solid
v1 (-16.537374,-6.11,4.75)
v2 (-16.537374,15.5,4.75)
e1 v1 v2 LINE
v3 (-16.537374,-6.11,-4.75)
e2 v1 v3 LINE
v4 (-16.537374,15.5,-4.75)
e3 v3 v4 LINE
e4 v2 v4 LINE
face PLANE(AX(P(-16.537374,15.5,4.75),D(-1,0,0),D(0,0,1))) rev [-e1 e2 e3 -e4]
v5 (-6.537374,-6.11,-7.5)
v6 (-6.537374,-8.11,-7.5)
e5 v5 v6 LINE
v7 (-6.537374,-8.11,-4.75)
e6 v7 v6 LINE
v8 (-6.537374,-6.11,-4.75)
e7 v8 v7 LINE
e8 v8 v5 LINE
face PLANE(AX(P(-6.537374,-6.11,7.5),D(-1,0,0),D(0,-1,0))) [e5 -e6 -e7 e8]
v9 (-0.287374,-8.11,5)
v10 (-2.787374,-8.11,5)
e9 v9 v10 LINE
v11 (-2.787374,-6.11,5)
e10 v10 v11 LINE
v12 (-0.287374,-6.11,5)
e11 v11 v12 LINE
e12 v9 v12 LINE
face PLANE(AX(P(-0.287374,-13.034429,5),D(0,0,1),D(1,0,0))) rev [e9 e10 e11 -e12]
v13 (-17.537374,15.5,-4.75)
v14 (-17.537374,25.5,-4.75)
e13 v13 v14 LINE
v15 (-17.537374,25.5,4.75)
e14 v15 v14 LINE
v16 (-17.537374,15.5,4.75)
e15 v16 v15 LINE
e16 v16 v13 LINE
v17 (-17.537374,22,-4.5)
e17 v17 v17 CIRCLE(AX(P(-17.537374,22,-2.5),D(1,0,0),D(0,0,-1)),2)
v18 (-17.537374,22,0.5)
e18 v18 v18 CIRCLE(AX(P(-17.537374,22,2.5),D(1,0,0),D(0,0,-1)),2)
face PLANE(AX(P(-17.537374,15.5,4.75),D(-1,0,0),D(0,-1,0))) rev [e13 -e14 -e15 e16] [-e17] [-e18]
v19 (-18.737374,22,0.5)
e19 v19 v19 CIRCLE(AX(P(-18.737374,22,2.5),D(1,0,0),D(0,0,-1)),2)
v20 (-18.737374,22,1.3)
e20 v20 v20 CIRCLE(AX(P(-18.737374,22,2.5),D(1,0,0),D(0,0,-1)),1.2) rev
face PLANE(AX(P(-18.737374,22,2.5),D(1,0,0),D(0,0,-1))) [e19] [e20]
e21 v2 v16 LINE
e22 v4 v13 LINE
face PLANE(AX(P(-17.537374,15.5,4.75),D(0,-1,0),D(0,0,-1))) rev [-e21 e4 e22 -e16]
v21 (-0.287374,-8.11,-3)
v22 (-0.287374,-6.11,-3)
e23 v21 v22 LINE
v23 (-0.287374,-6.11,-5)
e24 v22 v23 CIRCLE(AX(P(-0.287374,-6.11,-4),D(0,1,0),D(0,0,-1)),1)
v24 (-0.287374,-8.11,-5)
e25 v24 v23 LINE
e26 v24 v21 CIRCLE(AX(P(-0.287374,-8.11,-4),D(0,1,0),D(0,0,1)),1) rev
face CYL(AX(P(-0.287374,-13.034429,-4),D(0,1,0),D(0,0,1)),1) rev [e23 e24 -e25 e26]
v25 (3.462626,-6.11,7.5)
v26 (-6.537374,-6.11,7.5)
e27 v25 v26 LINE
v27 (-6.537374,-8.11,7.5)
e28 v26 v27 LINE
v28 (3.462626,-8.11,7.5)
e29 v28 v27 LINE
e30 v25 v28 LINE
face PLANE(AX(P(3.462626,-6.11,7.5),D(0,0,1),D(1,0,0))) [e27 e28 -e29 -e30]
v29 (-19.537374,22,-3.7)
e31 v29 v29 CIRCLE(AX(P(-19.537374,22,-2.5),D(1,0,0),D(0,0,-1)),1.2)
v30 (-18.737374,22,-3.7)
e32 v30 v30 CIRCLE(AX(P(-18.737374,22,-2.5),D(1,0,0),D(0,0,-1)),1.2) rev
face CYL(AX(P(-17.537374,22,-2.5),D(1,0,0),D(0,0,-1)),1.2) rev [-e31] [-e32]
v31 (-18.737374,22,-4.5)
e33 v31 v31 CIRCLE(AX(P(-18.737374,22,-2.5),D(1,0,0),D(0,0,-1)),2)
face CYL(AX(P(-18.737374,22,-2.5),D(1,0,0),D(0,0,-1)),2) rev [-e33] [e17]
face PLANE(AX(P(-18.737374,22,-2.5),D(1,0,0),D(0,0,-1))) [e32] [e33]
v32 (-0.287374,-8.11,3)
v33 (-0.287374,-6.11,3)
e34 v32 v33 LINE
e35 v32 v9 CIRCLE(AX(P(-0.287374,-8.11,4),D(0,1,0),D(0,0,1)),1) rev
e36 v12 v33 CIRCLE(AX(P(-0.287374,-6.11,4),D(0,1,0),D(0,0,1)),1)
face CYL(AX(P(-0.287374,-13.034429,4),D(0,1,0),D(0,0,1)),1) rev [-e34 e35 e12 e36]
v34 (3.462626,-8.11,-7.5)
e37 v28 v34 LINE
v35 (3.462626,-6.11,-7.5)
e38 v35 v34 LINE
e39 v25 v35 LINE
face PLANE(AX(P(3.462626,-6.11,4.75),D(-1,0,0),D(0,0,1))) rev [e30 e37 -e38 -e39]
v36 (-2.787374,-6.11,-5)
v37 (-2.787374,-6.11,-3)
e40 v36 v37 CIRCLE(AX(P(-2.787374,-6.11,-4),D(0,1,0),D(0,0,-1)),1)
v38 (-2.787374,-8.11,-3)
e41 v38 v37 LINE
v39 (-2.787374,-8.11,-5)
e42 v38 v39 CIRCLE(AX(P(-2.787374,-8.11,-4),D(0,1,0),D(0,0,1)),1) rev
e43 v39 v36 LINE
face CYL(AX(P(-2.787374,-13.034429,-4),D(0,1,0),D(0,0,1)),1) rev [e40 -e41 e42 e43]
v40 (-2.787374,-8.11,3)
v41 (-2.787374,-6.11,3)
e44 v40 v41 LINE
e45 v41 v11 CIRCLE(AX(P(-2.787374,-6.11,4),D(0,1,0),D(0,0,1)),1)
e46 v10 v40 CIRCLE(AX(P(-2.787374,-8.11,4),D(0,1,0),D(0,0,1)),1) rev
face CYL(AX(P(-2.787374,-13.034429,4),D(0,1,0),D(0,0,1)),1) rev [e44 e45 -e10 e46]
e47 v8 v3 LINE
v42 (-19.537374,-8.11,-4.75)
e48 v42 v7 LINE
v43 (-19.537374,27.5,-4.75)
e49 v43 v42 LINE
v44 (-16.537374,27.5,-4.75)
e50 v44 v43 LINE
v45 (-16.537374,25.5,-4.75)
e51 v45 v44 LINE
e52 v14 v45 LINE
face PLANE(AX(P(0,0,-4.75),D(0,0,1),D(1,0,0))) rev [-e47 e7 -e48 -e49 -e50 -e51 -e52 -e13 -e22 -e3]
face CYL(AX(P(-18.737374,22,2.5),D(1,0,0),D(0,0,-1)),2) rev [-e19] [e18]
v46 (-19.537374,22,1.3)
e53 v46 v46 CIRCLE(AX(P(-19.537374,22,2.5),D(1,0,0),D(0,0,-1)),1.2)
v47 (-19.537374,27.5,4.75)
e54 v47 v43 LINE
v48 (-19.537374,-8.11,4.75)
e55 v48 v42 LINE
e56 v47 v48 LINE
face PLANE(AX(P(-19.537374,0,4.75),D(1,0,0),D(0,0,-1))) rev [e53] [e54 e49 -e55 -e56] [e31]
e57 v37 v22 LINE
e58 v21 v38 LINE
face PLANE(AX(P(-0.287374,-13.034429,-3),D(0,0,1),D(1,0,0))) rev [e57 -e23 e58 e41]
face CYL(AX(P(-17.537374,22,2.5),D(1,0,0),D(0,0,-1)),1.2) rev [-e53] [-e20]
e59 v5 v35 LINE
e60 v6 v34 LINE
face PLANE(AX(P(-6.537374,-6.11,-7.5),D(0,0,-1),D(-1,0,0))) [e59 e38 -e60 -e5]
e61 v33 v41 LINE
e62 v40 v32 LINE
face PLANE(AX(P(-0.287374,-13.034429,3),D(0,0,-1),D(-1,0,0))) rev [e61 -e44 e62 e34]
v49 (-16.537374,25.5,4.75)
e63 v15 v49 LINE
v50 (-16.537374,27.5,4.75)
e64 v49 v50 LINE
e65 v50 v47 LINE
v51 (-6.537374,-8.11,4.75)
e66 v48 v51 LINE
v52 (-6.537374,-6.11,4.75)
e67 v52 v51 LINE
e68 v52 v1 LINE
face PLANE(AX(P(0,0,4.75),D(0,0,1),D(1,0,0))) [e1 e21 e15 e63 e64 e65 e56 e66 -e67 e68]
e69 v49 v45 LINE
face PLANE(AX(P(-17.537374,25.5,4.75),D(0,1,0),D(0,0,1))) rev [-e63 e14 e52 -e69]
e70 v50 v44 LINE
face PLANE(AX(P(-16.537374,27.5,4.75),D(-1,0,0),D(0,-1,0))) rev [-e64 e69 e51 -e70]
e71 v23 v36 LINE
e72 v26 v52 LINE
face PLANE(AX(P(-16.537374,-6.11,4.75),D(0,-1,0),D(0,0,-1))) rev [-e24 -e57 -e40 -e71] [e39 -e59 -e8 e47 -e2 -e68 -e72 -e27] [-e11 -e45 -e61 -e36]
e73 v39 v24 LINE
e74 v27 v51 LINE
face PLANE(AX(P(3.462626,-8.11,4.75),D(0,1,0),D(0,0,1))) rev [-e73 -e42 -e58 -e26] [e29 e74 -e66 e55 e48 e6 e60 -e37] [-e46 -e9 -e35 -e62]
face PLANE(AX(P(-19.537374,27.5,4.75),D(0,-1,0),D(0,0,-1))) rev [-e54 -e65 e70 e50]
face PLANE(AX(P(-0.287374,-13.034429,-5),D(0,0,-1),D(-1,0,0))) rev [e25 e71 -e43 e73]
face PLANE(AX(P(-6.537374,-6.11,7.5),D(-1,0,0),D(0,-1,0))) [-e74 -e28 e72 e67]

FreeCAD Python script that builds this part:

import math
import FreeCAD as App
import Part
import Sketcher

V = App.Vector
Q = App.Units.Quantity


def add_polygon(sketch, points):
    """Adds a closed chain of lines whose ends are joined by coincident constraints."""
    first, n = sketch.GeometryCount, len(points)
    for a, b in zip(points, points[1:] + points[:1]):
        sketch.addGeometry(Part.LineSegment(App.Vector(*a, 0), App.Vector(*b, 0)), False)
    for i in range(n):
        sketch.addConstraint(Sketcher.Constraint("Coincident", first + i, 2, first + (i + 1) % n, 1))

doc = App.newDocument("Part")
body = doc.addObject("PartDesign::Body", "Body")

# Sketch on XY plane
sketch1 = body.newObject("Sketcher::SketchObject", "Sketch")
sketch1.AttachmentSupport = (doc.getObject("XY_Plane"), [""])
sketch1.MapMode = "FlatFace"
add_polygon(sketch1, [(-17.5, 15.5), (-17.5, 25.5), (-16.5, 25.5), (-16.5, 27.5), (-19.5, 27.5), (-19.5, -8.1), (3.5, -8.1), (3.5, -6.1), (-16.5, -6.1), (-16.5, 15.5)])  # lines 0-9
sketch1.addConstraint(Sketcher.Constraint("Vertical", 0))
sketch1.addConstraint(Sketcher.Constraint("Horizontal", 1))
sketch1.addConstraint(Sketcher.Constraint("Vertical", 2))
sketch1.addConstraint(Sketcher.Constraint("Horizontal", 3))
sketch1.addConstraint(Sketcher.Constraint("Vertical", 4))
sketch1.addConstraint(Sketcher.Constraint("Horizontal", 5))
sketch1.addConstraint(Sketcher.Constraint("Vertical", 6))
sketch1.addConstraint(Sketcher.Constraint("Horizontal", 7))
sketch1.addConstraint(Sketcher.Constraint("Vertical", 8))
sketch1.addConstraint(Sketcher.Constraint("Horizontal", 9))
sketch1.addConstraint(Sketcher.Constraint("Vertical", 2, 2, 7, 2))
sketch1.addConstraint(Sketcher.Constraint("Equal", 2, 6))
sketch1.addConstraint(Sketcher.Constraint("DistanceX", 1, 1, 1, 2, Q("1 mm")))
sketch1.addConstraint(Sketcher.Constraint("DistanceX", 3, 2, 3, 1, Q("3 mm")))
sketch1.addConstraint(Sketcher.Constraint("DistanceX", 5, 1, 5, 2, Q("23 mm")))
sketch1.addConstraint(Sketcher.Constraint("DistanceY", 0, 1, 0, 2, Q("10 mm")))
sketch1.addConstraint(Sketcher.Constraint("DistanceY", 2, 1, 2, 2, Q("2 mm")))
sketch1.addConstraint(Sketcher.Constraint("DistanceY", 4, 2, 4, 1, Q("35.61 mm")))
sketch1.addConstraint(Sketcher.Constraint("DistanceY", -1, 1, 0, 2, Q("25.5 mm")))
sketch1.addConstraint(Sketcher.Constraint("DistanceX", 0, 2, -1, 1, Q("17.537374 mm")))
pad1 = body.newObject("PartDesign::Pad", "Pad")
pad1.Profile = sketch1
pad1.Length = 9.5
pad1.Midplane = True

# Sketch on YZ plane
sketch2 = body.newObject("Sketcher::SketchObject", "Sketch001")
sketch2.AttachmentSupport = (doc.getObject("YZ_Plane"), [""])
sketch2.MapMode = "FlatFace"
sketch2.AttachmentOffset = App.Placement(V(0, 0, -17.537374), App.Rotation())
sketch2.addGeometry(Part.Circle(V(22, 2.5, 0), V(0, 0, 1), 1.2), False)
sketch2.addGeometry(Part.Circle(V(22, -2.5, 0), V(0, 0, 1), 1.2), False)
sketch2.addConstraint(Sketcher.Constraint("Equal", 0, 1))
sketch2.addConstraint(Sketcher.Constraint("Symmetric", 0, 3, 1, 3, -1))
sketch2.addConstraint(Sketcher.Constraint("Diameter", 0, Q("2.4 mm")))
sketch2.addConstraint(Sketcher.Constraint("DistanceX", -1, 1, 0, 3, Q("22 mm")))
sketch2.addConstraint(Sketcher.Constraint("DistanceY", 1, 3, 0, 3, Q("5 mm")))
doc.recompute()
hole = body.newObject("PartDesign::Hole", "Hole")
hole.Profile = sketch2
hole.ThreadType = "None"
hole.Diameter = 2.4
hole.DepthType = "ThroughAll"

# Sketch on YZ plane
sketch3 = body.newObject("Sketcher::SketchObject", "Sketch002")
sketch3.AttachmentSupport = (doc.getObject("YZ_Plane"), [""])
sketch3.MapMode = "FlatFace"
sketch3.AttachmentOffset = App.Placement(V(0, 0, -17.537374), App.Rotation())
sketch3.addGeometry(Part.Circle(V(22, 2.5, 0), V(0, 0, 1), 2), False)
sketch3.addGeometry(Part.Circle(V(22, -2.5, 0), V(0, 0, 1), 2), False)
sketch3.addConstraint(Sketcher.Constraint("Equal", 0, 1))
sketch3.addConstraint(Sketcher.Constraint("Symmetric", 0, 3, 1, 3, -1))
sketch3.addConstraint(Sketcher.Constraint("Diameter", 0, Q("4 mm")))
sketch3.addConstraint(Sketcher.Constraint("DistanceX", -1, 1, 0, 3, Q("22 mm")))
sketch3.addConstraint(Sketcher.Constraint("DistanceY", 1, 3, 0, 3, Q("5 mm")))
pocket1 = body.newObject("PartDesign::Pocket", "Pocket")
pocket1.Profile = sketch3
pocket1.Length = 1.2

# Sketch on XZ plane
sketch4 = body.newObject("Sketcher::SketchObject", "Sketch003")
sketch4.AttachmentSupport = (doc.getObject("XZ_Plane"), [""])
sketch4.MapMode = "FlatFace"
sketch4.AttachmentOffset = App.Placement(V(0, 0, 8.11), App.Rotation())
add_polygon(sketch4, [(-7, 8), (-7, -8), (3, -8), (3, 8)])  # lines 0-3
sketch4.addConstraint(Sketcher.Constraint("Vertical", 0))
sketch4.addConstraint(Sketcher.Constraint("Horizontal", 1))
sketch4.addConstraint(Sketcher.Constraint("Vertical", 2))
sketch4.addConstraint(Sketcher.Constraint("Horizontal", 3))
sketch4.addConstraint(Sketcher.Constraint("DistanceX", 1, 1, 1, 2, Q("10 mm")))
sketch4.addConstraint(Sketcher.Constraint("DistanceY", 0, 2, 0, 1, Q("15 mm")))
sketch4.addConstraint(Sketcher.Constraint("DistanceY", 0, 2, -1, 1, Q("7.5 mm")))
sketch4.addConstraint(Sketcher.Constraint("DistanceX", 0, 2, -1, 1, Q("6.537374 mm")))
pad2 = body.newObject("PartDesign::Pad", "Pad001")
pad2.Profile = sketch4
pad2.Length = 2
pad2.Reversed = True

# Sketch on XZ plane
sketch5 = body.newObject("Sketcher::SketchObject", "Sketch004")
sketch5.AttachmentSupport = (doc.getObject("XZ_Plane"), [""])
sketch5.MapMode = "FlatFace"
sketch5.AttachmentOffset = App.Placement(V(0, 0, 6.11), App.Rotation())
sketch5.addGeometry(Part.LineSegment(V(-2.8, 5, 0), V(-0.3, 5, 0)), False)
sketch5.addGeometry(Part.ArcOfCircle(Part.Circle(V(-0.3, 4, 0), V(0, 0, 1), 1), math.radians(-90), math.radians(90)), False)
sketch5.addGeometry(Part.LineSegment(V(-0.3, 3, 0), V(-2.8, 3, 0)), False)
sketch5.addGeometry(Part.ArcOfCircle(Part.Circle(V(-2.8, 4, 0), V(0, 0, 1), 1), math.radians(90), math.radians(270)), False)
sketch5.addGeometry(Part.LineSegment(V(-0.3, -5, 0), V(-2.8, -5, 0)), False)
sketch5.addGeometry(Part.ArcOfCircle(Part.Circle(V(-2.8, -4, 0), V(0, 0, 1), 1), math.radians(90), math.radians(270)), False)
sketch5.addGeometry(Part.LineSegment(V(-2.8, -3, 0), V(-0.3, -3, 0)), False)
sketch5.addGeometry(Part.ArcOfCircle(Part.Circle(V(-0.3, -4, 0), V(0, 0, 1), 1), math.radians(-90), math.radians(90)), False)
sketch5.addConstraint(Sketcher.Constraint("Tangent", 0, 2, 1, 2))
sketch5.addConstraint(Sketcher.Constraint("Tangent", 1, 1, 2, 1))
sketch5.addConstraint(Sketcher.Constraint("Tangent", 2, 2, 3, 2))
sketch5.addConstraint(Sketcher.Constraint("Tangent", 3, 1, 0, 1))
sketch5.addConstraint(Sketcher.Constraint("Tangent", 4, 2, 5, 2))
sketch5.addConstraint(Sketcher.Constraint("Tangent", 5, 1, 6, 1))
sketch5.addConstraint(Sketcher.Constraint("Tangent", 6, 2, 7, 2))
sketch5.addConstraint(Sketcher.Constraint("Tangent", 7, 1, 4, 1))
sketch5.addConstraint(Sketcher.Constraint("Horizontal", 0))
sketch5.addConstraint(Sketcher.Constraint("Horizontal", 2))
sketch5.addConstraint(Sketcher.Constraint("Horizontal", 4))
sketch5.addConstraint(Sketcher.Constraint("Horizontal", 6))
sketch5.addConstraint(Sketcher.Constraint("Equal", 3, 5))
sketch5.addConstraint(Sketcher.Constraint("Symmetric", 3, 3, 5, 3, -1))
sketch5.addConstraint(Sketcher.Constraint("Vertical", 1, 3, 7, 3))
sketch5.addConstraint(Sketcher.Constraint("Radius", 1, Q("1 mm")))
sketch5.addConstraint(Sketcher.Constraint("DistanceX", 0, 1, 0, 2, Q("2.5 mm")))
sketch5.addConstraint(Sketcher.Constraint("DistanceY", -1, 1, 1, 3, Q("4 mm")))
sketch5.addConstraint(Sketcher.Constraint("DistanceX", 1, 3, -1, 1, Q("0.287374 mm")))
pocket2 = body.newObject("PartDesign::Pocket", "Pocket001")
pocket2.Profile = sketch5
pocket2.Length = 2
pocket2.Reversed = True

doc.recompute()
